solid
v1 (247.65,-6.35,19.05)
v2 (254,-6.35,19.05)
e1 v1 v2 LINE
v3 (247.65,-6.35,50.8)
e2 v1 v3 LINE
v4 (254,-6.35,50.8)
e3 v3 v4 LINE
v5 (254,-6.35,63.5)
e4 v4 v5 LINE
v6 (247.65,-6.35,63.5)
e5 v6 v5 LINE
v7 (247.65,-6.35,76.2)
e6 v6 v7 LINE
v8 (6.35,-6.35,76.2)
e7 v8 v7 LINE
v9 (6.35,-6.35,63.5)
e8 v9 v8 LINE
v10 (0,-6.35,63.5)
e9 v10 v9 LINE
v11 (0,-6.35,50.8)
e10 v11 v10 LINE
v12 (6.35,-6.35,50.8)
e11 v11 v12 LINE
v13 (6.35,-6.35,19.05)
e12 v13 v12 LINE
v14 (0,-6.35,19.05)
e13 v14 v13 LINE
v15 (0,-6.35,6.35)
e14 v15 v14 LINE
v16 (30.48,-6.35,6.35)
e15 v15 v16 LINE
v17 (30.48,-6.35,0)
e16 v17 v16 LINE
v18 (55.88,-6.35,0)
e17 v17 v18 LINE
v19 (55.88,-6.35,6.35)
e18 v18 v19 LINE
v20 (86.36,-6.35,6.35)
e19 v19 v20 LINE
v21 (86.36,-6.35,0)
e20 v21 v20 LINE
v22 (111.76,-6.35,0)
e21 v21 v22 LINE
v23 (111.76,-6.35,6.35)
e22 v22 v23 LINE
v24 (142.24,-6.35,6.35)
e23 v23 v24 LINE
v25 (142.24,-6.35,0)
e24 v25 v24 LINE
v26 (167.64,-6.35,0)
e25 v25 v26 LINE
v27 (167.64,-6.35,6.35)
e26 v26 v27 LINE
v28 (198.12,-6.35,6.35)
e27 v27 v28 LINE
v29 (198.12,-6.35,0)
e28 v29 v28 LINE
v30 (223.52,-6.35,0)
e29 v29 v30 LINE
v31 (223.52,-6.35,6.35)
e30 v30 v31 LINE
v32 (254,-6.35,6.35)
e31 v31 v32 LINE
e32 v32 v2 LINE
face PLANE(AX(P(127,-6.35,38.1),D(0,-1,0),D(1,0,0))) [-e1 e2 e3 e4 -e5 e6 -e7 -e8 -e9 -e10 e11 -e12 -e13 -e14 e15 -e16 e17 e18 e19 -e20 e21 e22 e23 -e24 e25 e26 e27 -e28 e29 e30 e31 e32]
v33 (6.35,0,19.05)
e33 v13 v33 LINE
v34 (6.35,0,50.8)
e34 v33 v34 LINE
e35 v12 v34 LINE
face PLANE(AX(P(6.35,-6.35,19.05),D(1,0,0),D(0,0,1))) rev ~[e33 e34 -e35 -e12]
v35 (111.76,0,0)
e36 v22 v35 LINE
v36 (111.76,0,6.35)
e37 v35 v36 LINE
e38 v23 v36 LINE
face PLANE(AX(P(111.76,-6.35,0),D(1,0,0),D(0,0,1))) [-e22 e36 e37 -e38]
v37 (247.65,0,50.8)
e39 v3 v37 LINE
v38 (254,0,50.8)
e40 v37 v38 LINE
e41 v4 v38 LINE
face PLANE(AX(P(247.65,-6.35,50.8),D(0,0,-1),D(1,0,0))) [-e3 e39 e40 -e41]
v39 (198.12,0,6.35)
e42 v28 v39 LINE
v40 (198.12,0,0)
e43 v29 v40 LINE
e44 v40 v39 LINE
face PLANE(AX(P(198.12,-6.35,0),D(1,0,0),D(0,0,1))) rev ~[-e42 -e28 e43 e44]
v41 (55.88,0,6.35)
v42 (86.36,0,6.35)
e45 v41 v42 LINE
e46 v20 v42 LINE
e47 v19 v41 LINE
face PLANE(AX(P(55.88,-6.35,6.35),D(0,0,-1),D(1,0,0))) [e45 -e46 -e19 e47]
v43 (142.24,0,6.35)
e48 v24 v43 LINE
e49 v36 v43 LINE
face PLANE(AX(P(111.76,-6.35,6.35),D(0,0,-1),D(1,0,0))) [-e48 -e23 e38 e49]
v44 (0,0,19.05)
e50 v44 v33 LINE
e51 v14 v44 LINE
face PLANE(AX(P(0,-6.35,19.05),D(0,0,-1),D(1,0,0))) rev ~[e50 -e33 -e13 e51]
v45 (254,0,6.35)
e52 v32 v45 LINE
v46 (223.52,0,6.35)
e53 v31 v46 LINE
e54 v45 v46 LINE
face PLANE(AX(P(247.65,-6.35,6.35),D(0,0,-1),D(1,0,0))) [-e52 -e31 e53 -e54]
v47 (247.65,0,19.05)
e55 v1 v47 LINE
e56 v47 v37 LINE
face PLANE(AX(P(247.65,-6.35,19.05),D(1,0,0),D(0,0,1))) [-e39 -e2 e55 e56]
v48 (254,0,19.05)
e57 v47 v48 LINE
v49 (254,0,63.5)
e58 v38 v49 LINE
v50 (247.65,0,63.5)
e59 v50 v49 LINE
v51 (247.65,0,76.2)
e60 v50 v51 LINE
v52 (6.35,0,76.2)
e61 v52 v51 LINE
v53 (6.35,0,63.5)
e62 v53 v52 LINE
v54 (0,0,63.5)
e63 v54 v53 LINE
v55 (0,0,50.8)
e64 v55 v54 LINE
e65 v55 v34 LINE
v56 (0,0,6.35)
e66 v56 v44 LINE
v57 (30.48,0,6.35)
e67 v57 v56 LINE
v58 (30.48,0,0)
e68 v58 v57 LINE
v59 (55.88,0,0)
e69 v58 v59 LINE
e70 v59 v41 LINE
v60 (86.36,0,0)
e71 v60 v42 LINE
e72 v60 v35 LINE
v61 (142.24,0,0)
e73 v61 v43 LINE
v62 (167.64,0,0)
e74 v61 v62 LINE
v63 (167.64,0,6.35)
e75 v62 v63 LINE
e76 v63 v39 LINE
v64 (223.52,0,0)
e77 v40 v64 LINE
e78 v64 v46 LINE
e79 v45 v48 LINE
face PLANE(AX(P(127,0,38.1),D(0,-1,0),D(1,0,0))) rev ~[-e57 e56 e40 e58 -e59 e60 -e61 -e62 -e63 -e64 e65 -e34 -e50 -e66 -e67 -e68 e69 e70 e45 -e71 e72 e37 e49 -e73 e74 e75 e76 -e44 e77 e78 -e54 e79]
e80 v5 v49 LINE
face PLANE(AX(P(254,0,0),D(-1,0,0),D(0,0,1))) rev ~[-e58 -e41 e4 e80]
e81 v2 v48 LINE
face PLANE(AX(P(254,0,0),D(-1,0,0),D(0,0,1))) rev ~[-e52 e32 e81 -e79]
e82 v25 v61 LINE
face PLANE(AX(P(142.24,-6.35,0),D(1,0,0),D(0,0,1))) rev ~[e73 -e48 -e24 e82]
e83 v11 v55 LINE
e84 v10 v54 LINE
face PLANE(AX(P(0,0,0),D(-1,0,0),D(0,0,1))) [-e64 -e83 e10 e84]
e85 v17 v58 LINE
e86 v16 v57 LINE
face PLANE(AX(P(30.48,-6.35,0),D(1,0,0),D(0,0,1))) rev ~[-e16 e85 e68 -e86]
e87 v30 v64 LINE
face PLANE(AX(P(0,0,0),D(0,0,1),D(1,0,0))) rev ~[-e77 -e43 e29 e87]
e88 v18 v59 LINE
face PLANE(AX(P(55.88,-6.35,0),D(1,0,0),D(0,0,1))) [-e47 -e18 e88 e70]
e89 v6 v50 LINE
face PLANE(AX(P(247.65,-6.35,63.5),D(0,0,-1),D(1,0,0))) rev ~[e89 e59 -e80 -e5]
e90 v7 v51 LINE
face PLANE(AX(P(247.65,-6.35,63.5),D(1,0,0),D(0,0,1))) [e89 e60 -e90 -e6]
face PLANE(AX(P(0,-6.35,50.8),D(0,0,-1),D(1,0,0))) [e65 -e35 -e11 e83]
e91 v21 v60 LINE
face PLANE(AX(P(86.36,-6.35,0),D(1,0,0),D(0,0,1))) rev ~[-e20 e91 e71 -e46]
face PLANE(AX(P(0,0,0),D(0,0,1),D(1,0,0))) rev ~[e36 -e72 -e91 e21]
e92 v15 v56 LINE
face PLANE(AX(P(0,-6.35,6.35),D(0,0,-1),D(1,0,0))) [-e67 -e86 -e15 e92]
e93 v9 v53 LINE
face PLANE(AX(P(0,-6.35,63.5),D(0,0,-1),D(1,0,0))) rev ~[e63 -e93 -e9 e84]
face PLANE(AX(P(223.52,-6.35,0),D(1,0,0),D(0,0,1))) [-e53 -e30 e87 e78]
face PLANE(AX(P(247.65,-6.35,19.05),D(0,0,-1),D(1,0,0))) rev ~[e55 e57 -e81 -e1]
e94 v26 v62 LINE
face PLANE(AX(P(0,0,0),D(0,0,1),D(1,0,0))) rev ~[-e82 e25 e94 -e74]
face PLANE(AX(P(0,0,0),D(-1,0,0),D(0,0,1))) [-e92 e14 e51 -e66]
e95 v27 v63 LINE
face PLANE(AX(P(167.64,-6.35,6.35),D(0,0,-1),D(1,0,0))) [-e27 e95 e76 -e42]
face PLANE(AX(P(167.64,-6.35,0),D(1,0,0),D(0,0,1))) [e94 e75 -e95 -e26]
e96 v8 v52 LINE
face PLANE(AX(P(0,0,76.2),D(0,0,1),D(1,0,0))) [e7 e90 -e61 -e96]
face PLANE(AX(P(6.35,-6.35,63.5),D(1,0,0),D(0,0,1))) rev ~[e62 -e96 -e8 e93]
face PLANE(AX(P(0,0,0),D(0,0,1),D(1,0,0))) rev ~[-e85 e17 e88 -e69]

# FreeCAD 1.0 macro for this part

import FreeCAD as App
import Part
import Sketcher
Q = App.Units.Quantity

doc = App.newDocument("Part")
params = doc.addObject("Spreadsheet::Sheet", "Params")
for row, (alias, value) in enumerate([
    ("sketch1_width", "10 in"),
    ("sketch1_height", "3 in"),
    ("pad1_length", "0.25 in"),
    ("sketch2_height", "0.5 in"),
    ("sketch2_width", "0.25 in"),
    ("sketch2_height2", "1.25 in"),
    ("sketch3_width", "1.2 in"),
    ("sketch3_height", "0.25 in"),
], start=1):
    params.set(f"A{row}", alias)
    params.set(f"B{row}", "=" + value)
    params.setAlias(f"B{row}", alias)

body = doc.addObject("PartDesign::Body", "Body")

sketch1 = body.newObject("Sketcher::SketchObject", "Sketch")
sketch1.AttachmentSupport = (doc.getObject("XZ_Plane"), [""])
sketch1.MapMode = "FlatFace"
sketch1.addGeometry(Part.LineSegment(App.Vector(0, 76, 0), App.Vector(0, 0, 0)), False)
sketch1.addGeometry(Part.LineSegment(App.Vector(0, 0, 0), App.Vector(254, 0, 0)), False)
sketch1.addGeometry(Part.LineSegment(App.Vector(254, 0, 0), App.Vector(254, 76, 0)), False)
sketch1.addGeometry(Part.LineSegment(App.Vector(254, 76, 0), App.Vector(0, 76, 0)), False)
sketch1.addConstraint(Sketcher.Constraint("Coincident", 0, 2, 1, 1))
sketch1.addConstraint(Sketcher.Constraint("Coincident", 1, 2, 2, 1))
sketch1.addConstraint(Sketcher.Constraint("Coincident", 2, 2, 3, 1))
sketch1.addConstraint(Sketcher.Constraint("Coincident", 3, 2, 0, 1))
sketch1.addConstraint(Sketcher.Constraint("Vertical", 0))
sketch1.addConstraint(Sketcher.Constraint("Horizontal", 1))
sketch1.addConstraint(Sketcher.Constraint("Vertical", 2))
sketch1.addConstraint(Sketcher.Constraint("Horizontal", 3))
sketch1.addConstraint(Sketcher.Constraint("Coincident", 0, 2, -1, 1))
sketch1.addConstraint(Sketcher.Constraint("DistanceX", 1, 1, 1, 2, Q("10 in")))
sketch1.addConstraint(Sketcher.Constraint("DistanceY", 0, 2, 0, 1, Q("3 in")))
sketch1.setExpression("Constraints[9]", "Params.sketch1_width")
sketch1.setExpression("Constraints[10]", "Params.sketch1_height")
pad1 = body.newObject("PartDesign::Pad", "Pad")
pad1.Profile = sketch1
pad1.setExpression("Length", "Params.pad1_length")

sketch2 = body.newObject("Sketcher::SketchObject", "Sketch001")
sketch2.AttachmentSupport = (doc.getObject("XZ_Plane"), [""])
sketch2.MapMode = "FlatFace"
sketch2.AttachmentOffset = App.Placement(App.Vector(0, 0, 0.25 * 25.4), App.Rotation())
sketch2.addGeometry(Part.LineSegment(App.Vector(0, 6, 0), App.Vector(0, 0, 0)), False)
sketch2.addGeometry(Part.LineSegment(App.Vector(0, 0, 0), App.Vector(6, 0, 0)), False)
sketch2.addGeometry(Part.LineSegment(App.Vector(6, 0, 0), App.Vector(6, 6, 0)), False)
sketch2.addGeometry(Part.LineSegment(App.Vector(6, 6, 0), App.Vector(0, 6, 0)), False)
sketch2.addGeometry(Part.LineSegment(App.Vector(0, 76, 0), App.Vector(0, 64, 0)), False)
sketch2.addGeometry(Part.LineSegment(App.Vector(0, 64, 0), App.Vector(6, 64, 0)), False)
sketch2.addGeometry(Part.LineSegment(App.Vector(6, 64, 0), App.Vector(6, 76, 0)), False)
sketch2.addGeometry(Part.LineSegment(App.Vector(6, 76, 0), App.Vector(0, 76, 0)), False)
sketch2.addGeometry(Part.LineSegment(App.Vector(0, 51, 0), App.Vector(0, 19, 0)), False)
sketch2.addGeometry(Part.LineSegment(App.Vector(0, 19, 0), App.Vector(6, 19, 0)), False)
sketch2.addGeometry(Part.LineSegment(App.Vector(6, 19, 0), App.Vector(6, 51, 0)), False)
sketch2.addGeometry(Part.LineSegment(App.Vector(6, 51, 0), App.Vector(0, 51, 0)), False)
sketch2.addGeometry(Part.LineSegment(App.Vector(248, 6, 0), App.Vector(248, 0, 0)), False)
sketch2.addGeometry(Part.LineSegment(App.Vector(248, 0, 0), App.Vector(254, 0, 0)), False)
sketch2.addGeometry(Part.LineSegment(App.Vector(254, 0, 0), App.Vector(254, 6, 0)), False)
sketch2.addGeometry(Part.LineSegment(App.Vector(254, 6, 0), App.Vector(248, 6, 0)), False)
sketch2.addGeometry(Part.LineSegment(App.Vector(248, 51, 0), App.Vector(248, 19, 0)), False)
sketch2.addGeometry(Part.LineSegment(App.Vector(248, 19, 0), App.Vector(254, 19, 0)), False)
sketch2.addGeometry(Part.LineSegment(App.Vector(254, 19, 0), App.Vector(254, 51, 0)), False)
sketch2.addGeometry(Part.LineSegment(App.Vector(254, 51, 0), App.Vector(248, 51, 0)), False)
sketch2.addGeometry(Part.LineSegment(App.Vector(248, 76, 0), App.Vector(248, 64, 0)), False)
sketch2.addGeometry(Part.LineSegment(App.Vector(248, 64, 0), App.Vector(254, 64, 0)), False)
sketch2.addGeometry(Part.LineSegment(App.Vector(254, 64, 0), App.Vector(254, 76, 0)), False)
sketch2.addGeometry(Part.LineSegment(App.Vector(254, 76, 0), App.Vector(248, 76, 0)), False)
sketch2.addConstraint(Sketcher.Constraint("Coincident", 0, 2, 1, 1))
sketch2.addConstraint(Sketcher.Constraint("Coincident", 1, 2, 2, 1))
sketch2.addConstraint(Sketcher.Constraint("Coincident", 2, 2, 3, 1))
sketch2.addConstraint(Sketcher.Constraint("Coincident", 3, 2, 0, 1))
sketch2.addConstraint(Sketcher.Constraint("Coincident", 4, 2, 5, 1))
sketch2.addConstraint(Sketcher.Constraint("Coincident", 5, 2, 6, 1))
sketch2.addConstraint(Sketcher.Constraint("Coincident", 6, 2, 7, 1))
sketch2.addConstraint(Sketcher.Constraint("Coincident", 7, 2, 4, 1))
sketch2.addConstraint(Sketcher.Constraint("Coincident", 8, 2, 9, 1))
sketch2.addConstraint(Sketcher.Constraint("Coincident", 9, 2, 10, 1))
sketch2.addConstraint(Sketcher.Constraint("Coincident", 10, 2, 11, 1))
sketch2.addConstraint(Sketcher.Constraint("Coincident", 11, 2, 8, 1))
sketch2.addConstraint(Sketcher.Constraint("Coincident", 12, 2, 13, 1))
sketch2.addConstraint(Sketcher.Constraint("Coincident", 13, 2, 14, 1))
sketch2.addConstraint(Sketcher.Constraint("Coincident", 14, 2, 15, 1))
sketch2.addConstraint(Sketcher.Constraint("Coincident", 15, 2, 12, 1))
sketch2.addConstraint(Sketcher.Constraint("Coincident", 16, 2, 17, 1))
sketch2.addConstraint(Sketcher.Constraint("Coincident", 17, 2, 18, 1))
sketch2.addConstraint(Sketcher.Constraint("Coincident", 18, 2, 19, 1))
sketch2.addConstraint(Sketcher.Constraint("Coincident", 19, 2, 16, 1))
sketch2.addConstraint(Sketcher.Constraint("Coincident", 20, 2, 21, 1))
sketch2.addConstraint(Sketcher.Constraint("Coincident", 21, 2, 22, 1))
sketch2.addConstraint(Sketcher.Constraint("Coincident", 22, 2, 23, 1))
sketch2.addConstraint(Sketcher.Constraint("Coincident", 23, 2, 20, 1))
sketch2.addConstraint(Sketcher.Constraint("Vertical", 0))
sketch2.addConstraint(Sketcher.Constraint("Horizontal", 1))
sketch2.addConstraint(Sketcher.Constraint("Vertical", 2))
sketch2.addConstraint(Sketcher.Constraint("Horizontal", 3))
sketch2.addConstraint(Sketcher.Constraint("Vertical", 4))
sketch2.addConstraint(Sketcher.Constraint("Horizontal", 5))
sketch2.addConstraint(Sketcher.Constraint("Vertical", 6))
sketch2.addConstraint(Sketcher.Constraint("Horizontal", 7))
sketch2.addConstraint(Sketcher.Constraint("Vertical", 8))
sketch2.addConstraint(Sketcher.Constraint("Horizontal", 9))
sketch2.addConstraint(Sketcher.Constraint("Vertical", 10))
sketch2.addConstraint(Sketcher.Constraint("Horizontal", 11))
sketch2.addConstraint(Sketcher.Constraint("Vertical", 12))
sketch2.addConstraint(Sketcher.Constraint("Horizontal", 13))
sketch2.addConstraint(Sketcher.Constraint("Vertical", 14))
sketch2.addConstraint(Sketcher.Constraint("Horizontal", 15))
sketch2.addConstraint(Sketcher.Constraint("Vertical", 16))
sketch2.addConstraint(Sketcher.Constraint("Horizontal", 17))
sketch2.addConstraint(Sketcher.Constraint("Vertical", 18))
sketch2.addConstraint(Sketcher.Constraint("Horizontal", 19))
sketch2.addConstraint(Sketcher.Constraint("Vertical", 20))
sketch2.addConstraint(Sketcher.Constraint("Horizontal", 21))
sketch2.addConstraint(Sketcher.Constraint("Vertical", 22))
sketch2.addConstraint(Sketcher.Constraint("Horizontal", 23))
sketch2.addConstraint(Sketcher.Constraint("Coincident", 0, 2, -1, 1))
sketch2.addConstraint(Sketcher.Constraint("PointOnObject", 4, 2, -2))
sketch2.addConstraint(Sketcher.Constraint("PointOnObject", 8, 2, -2))
sketch2.addConstraint(Sketcher.Constraint("PointOnObject", 12, 2, -1))
sketch2.addConstraint(Sketcher.Constraint("Horizontal", 3, 2, 14, 2))
sketch2.addConstraint(Sketcher.Constraint("Horizontal", 9, 2, 16, 2))
sketch2.addConstraint(Sketcher.Constraint("Horizontal", 11, 2, 18, 2))
sketch2.addConstraint(Sketcher.Constraint("Horizontal", 5, 2, 20, 2))
sketch2.addConstraint(Sketcher.Constraint("Horizontal", 7, 2, 22, 2))
sketch2.addConstraint(Sketcher.Constraint("Vertical", 2, 2, 5, 2))
sketch2.addConstraint(Sketcher.Constraint("Vertical", 6, 2, 9, 2))
sketch2.addConstraint(Sketcher.Constraint("Vertical", 15, 2, 16, 2))
sketch2.addConstraint(Sketcher.Constraint("Vertical", 14, 2, 17, 2))
sketch2.addConstraint(Sketcher.Constraint("Vertical", 19, 2, 20, 2))
sketch2.addConstraint(Sketcher.Constraint("Vertical", 18, 2, 21, 2))
sketch2.addConstraint(Sketcher.Constraint("Equal", 11, 13))
sketch2.addConstraint(Sketcher.Constraint("Equal", 23, 0))
sketch2.addConstraint(Sketcher.Constraint("DistanceY", 4, 2, 4, 1, Q("0.5 in")))
sketch2.addConstraint(Sketcher.Constraint("DistanceY", -1, 1, 6, 2, Q("3 in")))
sketch2.addConstraint(Sketcher.Constraint("DistanceY", -1, 1, 10, 2, Q("2 in")))
sketch2.addConstraint(Sketcher.Constraint("DistanceX", -1, 1, 13, 2, Q("10 in")))
sketch2.addConstraint(Sketcher.Constraint("DistanceX", 1, 1, 1, 2, Q("0.25 in")))
sketch2.addConstraint(Sketcher.Constraint("DistanceY", 8, 2, 8, 1, Q("1.25 in")))
sketch2.setExpression("Constraints[65]", "Params.sketch2_height")
sketch2.setExpression("Constraints[69]", "Params.sketch2_width")
sketch2.setExpression("Constraints[70]", "Params.sketch2_height2")
pocket1 = body.newObject("PartDesign::Pocket", "Pocket")
pocket1.Profile = sketch2
pocket1.Type = "ThroughAll"

sketch3 = body.newObject("Sketcher::SketchObject", "Sketch002")
sketch3.AttachmentSupport = (doc.getObject("XZ_Plane"), [""])
sketch3.MapMode = "FlatFace"
sketch3.AttachmentOffset = App.Placement(App.Vector(0, 0, 0.25 * 25.4), App.Rotation())
sketch3.addGeometry(Part.LineSegment(App.Vector(0, 6, 0), App.Vector(0, 0, 0)), False)
sketch3.addGeometry(Part.LineSegment(App.Vector(0, 0, 0), App.Vector(30, 0, 0)), False)
sketch3.addGeometry(Part.LineSegment(App.Vector(30, 0, 0), App.Vector(30, 6, 0)), False)
sketch3.addGeometry(Part.LineSegment(App.Vector(30, 6, 0), App.Vector(0, 6, 0)), False)
sketch3.addGeometry(Part.LineSegment(App.Vector(56, 6, 0), App.Vector(56, 0, 0)), False)
sketch3.addGeometry(Part.LineSegment(App.Vector(56, 0, 0), App.Vector(86, 0, 0)), False)
sketch3.addGeometry(Part.LineSegment(App.Vector(86, 0, 0), App.Vector(86, 6, 0)), False)
sketch3.addGeometry(Part.LineSegment(App.Vector(86, 6, 0), App.Vector(56, 6, 0)), False)
sketch3.addGeometry(Part.LineSegment(App.Vector(112, 6, 0), App.Vector(112, 0, 0)), False)
sketch3.addGeometry(Part.LineSegment(App.Vector(112, 0, 0), App.Vector(142, 0, 0)), False)
sketch3.addGeometry(Part.LineSegment(App.Vector(142, 0, 0), App.Vector(142, 6, 0)), False)
sketch3.addGeometry(Part.LineSegment(App.Vector(142, 6, 0), App.Vector(112, 6, 0)), False)
sketch3.addGeometry(Part.LineSegment(App.Vector(168, 6, 0), App.Vector(168, 0, 0)), False)
sketch3.addGeometry(Part.LineSegment(App.Vector(168, 0, 0), App.Vector(198, 0, 0)), False)
sketch3.addGeometry(Part.LineSegment(App.Vector(198, 0, 0), App.Vector(198, 6, 0)), False)
sketch3.addGeometry(Part.LineSegment(App.Vector(198, 6, 0), App.Vector(168, 6, 0)), False)
sketch3.addGeometry(Part.LineSegment(App.Vector(224, 6, 0), App.Vector(224, 0, 0)), False)
sketch3.addGeometry(Part.LineSegment(App.Vector(224, 0, 0), App.Vector(254, 0, 0)), False)
sketch3.addGeometry(Part.LineSegment(App.Vector(254, 0, 0), App.Vector(254, 6, 0)), False)
sketch3.addGeometry(Part.LineSegment(App.Vector(254, 6, 0), App.Vector(224, 6, 0)), False)
sketch3.addConstraint(Sketcher.Constraint("Coincident", 0, 2, 1, 1))
sketch3.addConstraint(Sketcher.Constraint("Coincident", 1, 2, 2, 1))
sketch3.addConstraint(Sketcher.Constraint("Coincident", 2, 2, 3, 1))
sketch3.addConstraint(Sketcher.Constraint("Coincident", 3, 2, 0, 1))
sketch3.addConstraint(Sketcher.Constraint("Coincident", 4, 2, 5, 1))
sketch3.addConstraint(Sketcher.Constraint("Coincident", 5, 2, 6, 1))
sketch3.addConstraint(Sketcher.Constraint("Coincident", 6, 2, 7, 1))
sketch3.addConstraint(Sketcher.Constraint("Coincident", 7, 2, 4, 1))
sketch3.addConstraint(Sketcher.Constraint("Coincident", 8, 2, 9, 1))
sketch3.addConstraint(Sketcher.Constraint("Coincident", 9, 2, 10, 1))
sketch3.addConstraint(Sketcher.Constraint("Coincident", 10, 2, 11, 1))
sketch3.addConstraint(Sketcher.Constraint("Coincident", 11, 2, 8, 1))
sketch3.addConstraint(Sketcher.Constraint("Coincident", 12, 2, 13, 1))
sketch3.addConstraint(Sketcher.Constraint("Coincident", 13, 2, 14, 1))
sketch3.addConstraint(Sketcher.Constraint("Coincident", 14, 2, 15, 1))
sketch3.addConstraint(Sketcher.Constraint("Coincident", 15, 2, 12, 1))
sketch3.addConstraint(Sketcher.Constraint("Coincident", 16, 2, 17, 1))
sketch3.addConstraint(Sketcher.Constraint("Coincident", 17, 2, 18, 1))
sketch3.addConstraint(Sketcher.Constraint("Coincident", 18, 2, 19, 1))
sketch3.addConstraint(Sketcher.Constraint("Coincident", 19, 2, 16, 1))
sketch3.addConstraint(Sketcher.Constraint("Vertical", 0))
sketch3.addConstraint(Sketcher.Constraint("Horizontal", 1))
sketch3.addConstraint(Sketcher.Constraint("Vertical", 2))
sketch3.addConstraint(Sketcher.Constraint("Horizontal", 3))
sketch3.addConstraint(Sketcher.Constraint("Vertical", 4))
sketch3.addConstraint(Sketcher.Constraint("Horizontal", 5))
sketch3.addConstraint(Sketcher.Constraint("Vertical", 6))
sketch3.addConstraint(Sketcher.Constraint("Horizontal", 7))
sketch3.addConstraint(Sketcher.Constraint("Vertical", 8))
sketch3.addConstraint(Sketcher.Constraint("Horizontal", 9))
sketch3.addConstraint(Sketcher.Constraint("Vertical", 10))
sketch3.addConstraint(Sketcher.Constraint("Horizontal", 11))
sketch3.addConstraint(Sketcher.Constraint("Vertical", 12))
sketch3.addConstraint(Sketcher.Constraint("Horizontal", 13))
sketch3.addConstraint(Sketcher.Constraint("Vertical", 14))
sketch3.addConstraint(Sketcher.Constraint("Horizontal", 15))
sketch3.addConstraint(Sketcher.Constraint("Vertical", 16))
sketch3.addConstraint(Sketcher.Constraint("Horizontal", 17))
sketch3.addConstraint(Sketcher.Constraint("Vertical", 18))
sketch3.addConstraint(Sketcher.Constraint("Horizontal", 19))
sketch3.addConstraint(Sketcher.Constraint("Coincident", 0, 2, -1, 1))
sketch3.addConstraint(Sketcher.Constraint("PointOnObject", 4, 2, -1))
sketch3.addConstraint(Sketcher.Constraint("PointOnObject", 8, 2, -1))
sketch3.addConstraint(Sketcher.Constraint("PointOnObject", 12, 2, -1))
sketch3.addConstraint(Sketcher.Constraint("PointOnObject", 16, 2, -1))
sketch3.addConstraint(Sketcher.Constraint("Horizontal", 3, 2, 6, 2))
sketch3.addConstraint(Sketcher.Constraint("Horizontal", 7, 2, 10, 2))
sketch3.addConstraint(Sketcher.Constraint("Horizontal", 11, 2, 14, 2))
sketch3.addConstraint(Sketcher.Constraint("Horizontal", 15, 2, 18, 2))
sketch3.addConstraint(Sketcher.Constraint("Equal", 3, 5))
sketch3.addConstraint(Sketcher.Constraint("Equal", 7, 9))
sketch3.addConstraint(Sketcher.Constraint("Equal", 11, 13))
sketch3.addConstraint(Sketcher.Constraint("Equal", 15, 17))
sketch3.addConstraint(Sketcher.Constraint("DistanceX", 1, 1, 1, 2, Q("1.2 in")))
sketch3.addConstraint(Sketcher.Constraint("DistanceX", -1, 1, 17, 2, Q("10 in")))
sketch3.addConstraint(Sketcher.Constraint("DistanceX", 1, 2, 4, 2, Q("1 in")))
sketch3.addConstraint(Sketcher.Constraint("DistanceX", 5, 2, 8, 2, Q("1 in")))
sketch3.addConstraint(Sketcher.Constraint("DistanceX", 9, 2, 12, 2, Q("1 in")))
sketch3.addConstraint(Sketcher.Constraint("DistanceY", 0, 2, 0, 1, Q("0.25 in")))
sketch3.setExpression("Constraints[53]", "Params.sketch3_width")
sketch3.setExpression("Constraints[58]", "Params.sketch3_height")
pocket2 = body.newObject("PartDesign::Pocket", "Pocket001")
pocket2.Profile = sketch3
pocket2.Type = "ThroughAll"

doc.recompute()
